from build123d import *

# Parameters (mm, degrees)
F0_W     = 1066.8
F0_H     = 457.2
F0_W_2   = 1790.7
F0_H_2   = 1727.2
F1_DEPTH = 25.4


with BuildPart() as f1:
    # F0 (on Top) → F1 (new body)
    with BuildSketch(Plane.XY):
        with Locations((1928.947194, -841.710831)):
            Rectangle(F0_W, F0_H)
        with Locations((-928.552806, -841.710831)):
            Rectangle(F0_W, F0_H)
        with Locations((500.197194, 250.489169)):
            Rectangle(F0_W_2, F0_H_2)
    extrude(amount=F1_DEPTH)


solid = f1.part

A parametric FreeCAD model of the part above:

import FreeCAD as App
import Part
import Sketcher

V = App.Vector
Q = App.Units.Quantity

doc = App.newDocument("Part")
body = doc.addObject("PartDesign::Body", "Body")
body.AllowCompound = True

# Sketch on XY plane
sketch1 = body.newObject("Sketcher::SketchObject", "Sketch")
sketch1.AttachmentSupport = (doc.getObject("XY_Plane"), [""])
sketch1.MapMode = "FlatFace"
sketch1.addGeometry([
    Part.LineSegment(V(1396, -613, 0), V(1396, -1070, 0)),  # 0
    Part.LineSegment(V(1396, -1070, 0), V(2462, -1070, 0)),  # 1
    Part.LineSegment(V(2462, -1070, 0), V(2462, -613, 0)),  # 2
    Part.LineSegment(V(2462, -613, 0), V(1396, -613, 0)),  # 3
    Part.LineSegment(V(-1462, -613, 0), V(-1462, -1070, 0)),  # 4
    Part.LineSegment(V(-1462, -1070, 0), V(-395, -1070, 0)),  # 5
    Part.LineSegment(V(-395, -1070, 0), V(-395, -613, 0)),  # 6
    Part.LineSegment(V(-395, -613, 0), V(-1462, -613, 0)),  # 7
    Part.LineSegment(V(-395, 1114, 0), V(-395, -613, 0)),  # 8
    Part.LineSegment(V(-395, -613, 0), V(1396, -613, 0)),  # 9
    Part.LineSegment(V(1396, -613, 0), V(1396, 1114, 0)),  # 10
    Part.LineSegment(V(1396, 1114, 0), V(-395, 1114, 0)),  # 11
], False)
sketch1.addConstraint([
    Sketcher.Constraint("Coincident", 0, 2, 1, 1),
    Sketcher.Constraint("Coincident", 1, 2, 2, 1),
    Sketcher.Constraint("Coincident", 2, 2, 3, 1),
    Sketcher.Constraint("Coincident", 3, 2, 0, 1),
    Sketcher.Constraint("Coincident", 4, 2, 5, 1),
    Sketcher.Constraint("Coincident", 5, 2, 6, 1),
    Sketcher.Constraint("Coincident", 6, 2, 7, 1),
    Sketcher.Constraint("Coincident", 7, 2, 4, 1),
    Sketcher.Constraint("Coincident", 8, 2, 9, 1),
    Sketcher.Constraint("Coincident", 9, 2, 10, 1),
    Sketcher.Constraint("Coincident", 10, 2, 11, 1),
    Sketcher.Constraint("Coincident", 11, 2, 8, 1),
    Sketcher.Constraint("Vertical", 0),
    Sketcher.Constraint("Horizontal", 1),
    Sketcher.Constraint("Vertical", 2),
    Sketcher.Constraint("Horizontal", 3),
    Sketcher.Constraint("Vertical", 4),
    Sketcher.Constraint("Horizontal", 5),
    Sketcher.Constraint("Vertical", 6),
    Sketcher.Constraint("Horizontal", 7),
    Sketcher.Constraint("Vertical", 8),
    Sketcher.Constraint("Horizontal", 9),
    Sketcher.Constraint("Vertical", 10),
    Sketcher.Constraint("Horizontal", 11),
    Sketcher.Constraint("Coincident", 8, 2, 6, 2),
    Sketcher.Constraint("Coincident", 9, 2, 3, 2),
    Sketcher.Constraint("Horizontal", 1, 2, 4, 2),
    Sketcher.Constraint("Equal", 3, 5),
    Sketcher.Constraint("DistanceX", 1, 1, 1, 2, Q("42 in")),
    Sketcher.Constraint("DistanceY", 0, 2, 0, 1, Q("18 in")),
    Sketcher.Constraint("DistanceY", 8, 2, 8, 1, Q("68 in")),
    Sketcher.Constraint("DistanceX", 9, 1, 9, 2, Q("70.5 in")),
    Sketcher.Constraint("DistanceY", 0, 2, -1, 1, 1070.310831),
    Sketcher.Constraint("DistanceX", -1, 1, 0, 2, 1395.547194),
])
pad1 = body.newObject("PartDesign::Pad", "Pad")
pad1.Profile = sketch1
pad1.Length = Q("1 in")

doc.recompute()
